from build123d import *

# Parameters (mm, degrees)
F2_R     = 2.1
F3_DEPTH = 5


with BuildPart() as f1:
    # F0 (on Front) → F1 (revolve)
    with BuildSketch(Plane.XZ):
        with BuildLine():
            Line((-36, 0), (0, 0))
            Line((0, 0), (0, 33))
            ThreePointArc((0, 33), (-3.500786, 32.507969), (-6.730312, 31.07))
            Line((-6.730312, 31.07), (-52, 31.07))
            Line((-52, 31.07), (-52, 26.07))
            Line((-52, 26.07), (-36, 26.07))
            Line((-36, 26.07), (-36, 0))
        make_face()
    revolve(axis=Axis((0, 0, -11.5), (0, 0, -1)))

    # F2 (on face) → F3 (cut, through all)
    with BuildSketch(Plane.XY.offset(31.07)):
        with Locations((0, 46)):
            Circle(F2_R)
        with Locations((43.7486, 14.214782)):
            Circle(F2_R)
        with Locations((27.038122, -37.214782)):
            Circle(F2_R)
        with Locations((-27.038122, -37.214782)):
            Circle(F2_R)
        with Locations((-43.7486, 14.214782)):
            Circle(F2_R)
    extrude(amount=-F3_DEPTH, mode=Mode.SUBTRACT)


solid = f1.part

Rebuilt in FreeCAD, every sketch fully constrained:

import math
import FreeCAD as App
import Part
import Sketcher
Q = App.Units.Quantity

doc = App.newDocument("Part")
body = doc.addObject("PartDesign::Body", "Body")

# Sketch on XZ plane
sketch1 = doc.addObject("Sketcher::SketchObject", "Sketch")
body.addObject(sketch1)
sketch1.AttachmentSupport = (doc.XZ_Plane, [""])
sketch1.MapMode = "FlatFace"
sketch1.addGeometry(Part.LineSegment(App.Vector(-36, 0, 0), App.Vector(0, 0, 0)), False)
sketch1.addGeometry(Part.LineSegment(App.Vector(0, 0, 0), App.Vector(0, 33, 0)), False)
sketch1.addGeometry(Part.ArcOfCircle(Part.Circle(App.Vector(0, 20, 0), App.Vector(0, 0, 1), 13), math.radians(90), math.radians(122)), False)
sketch1.addGeometry(Part.LineSegment(App.Vector(-7, 31, 0), App.Vector(-52, 31, 0)), False)
sketch1.addGeometry(Part.LineSegment(App.Vector(-52, 31, 0), App.Vector(-52, 26, 0)), False)
sketch1.addGeometry(Part.LineSegment(App.Vector(-52, 26, 0), App.Vector(-36, 26, 0)), False)
sketch1.addGeometry(Part.LineSegment(App.Vector(-36, 26, 0), App.Vector(-36, 0, 0)), False)
sketch1.addConstraint(Sketcher.Constraint("Coincident", 0, 2, 1, 1))
sketch1.addConstraint(Sketcher.Constraint("Coincident", 1, 2, 2, 1))
sketch1.addConstraint(Sketcher.Constraint("Coincident", 2, 2, 3, 1))
sketch1.addConstraint(Sketcher.Constraint("Coincident", 3, 2, 4, 1))
sketch1.addConstraint(Sketcher.Constraint("Coincident", 4, 2, 5, 1))
sketch1.addConstraint(Sketcher.Constraint("Coincident", 5, 2, 6, 1))
sketch1.addConstraint(Sketcher.Constraint("Coincident", 6, 2, 0, 1))
sketch1.addConstraint(Sketcher.Constraint("Horizontal", 0))
sketch1.addConstraint(Sketcher.Constraint("Vertical", 1))
sketch1.addConstraint(Sketcher.Constraint("Horizontal", 3))
sketch1.addConstraint(Sketcher.Constraint("Vertical", 4))
sketch1.addConstraint(Sketcher.Constraint("Horizontal", 5))
sketch1.addConstraint(Sketcher.Constraint("Vertical", 6))
sketch1.addConstraint(Sketcher.Constraint("Coincident", 0, 2, -1, 1))
sketch1.addConstraint(Sketcher.Constraint("DistanceX", 0, 1, 0, 2, Q("36 mm")))
sketch1.addConstraint(Sketcher.Constraint("DistanceX", 5, 1, 5, 2, Q("16 mm")))
sketch1.addConstraint(Sketcher.Constraint("DistanceY", 1, 1, 1, 2, Q("33 mm")))
sketch1.addConstraint(Sketcher.Constraint("DistanceY", 4, 2, 4, 1, Q("5 mm")))
sketch1.addConstraint(Sketcher.Constraint("DistanceY", 6, 2, 6, 1, Q("26.07 mm")))
sketch1.addConstraint(Sketcher.Constraint("Radius", 2, Q("12.69999 mm")))
sketch1.addConstraint(Sketcher.Constraint("DistanceX", 3, 2, 3, 1, Q("45.269688 mm")))
revolution = doc.addObject("PartDesign::Revolution", "Revolution")
body.addObject(revolution)
revolution.Profile = sketch1
revolution.ReferenceAxis = (sketch1, ["V_Axis"])
revolution.Angle = 360

# Sketch on XY plane
sketch2 = doc.addObject("Sketcher::SketchObject", "Sketch001")
body.addObject(sketch2)
sketch2.AttachmentSupport = (doc.XY_Plane, [""])
sketch2.MapMode = "FlatFace"
sketch2.AttachmentOffset = App.Placement(App.Vector(0, 0, 31.07), App.Rotation())
sketch2.addGeometry(Part.Circle(App.Vector(0, 46, 0), App.Vector(0, 0, 1), 2.1), False)
sketch2.addGeometry(Part.Circle(App.Vector(43.7, 14.2, 0), App.Vector(0, 0, 1), 2.1), False)
sketch2.addGeometry(Part.Circle(App.Vector(27, -37.2, 0), App.Vector(0, 0, 1), 2.1), False)
sketch2.addGeometry(Part.Circle(App.Vector(-27, -37.2, 0), App.Vector(0, 0, 1), 2.1), False)
sketch2.addGeometry(Part.Circle(App.Vector(-43.7, 14.2, 0), App.Vector(0, 0, 1), 2.1), False)
sketch2.addConstraint(Sketcher.Constraint("Equal", 0, 1))
sketch2.addConstraint(Sketcher.Constraint("Equal", 1, 2))
sketch2.addConstraint(Sketcher.Constraint("Equal", 2, 3))
sketch2.addConstraint(Sketcher.Constraint("Equal", 3, 4))
sketch2.addConstraint(Sketcher.Constraint("Symmetric", 2, 3, 3, 3, -2))
sketch2.addConstraint(Sketcher.Constraint("Symmetric", 1, 3, 4, 3, -2))
sketch2.addConstraint(Sketcher.Constraint("PointOnObject", 0, 3, -2))
sketch2.addConstraint(Sketcher.Constraint("Diameter", 0, Q("4.2 mm")))
sketch2.addConstraint(Sketcher.Constraint("DistanceY", -1, 1, 0, 3, Q("46 mm")))
sketch2.addConstraint(Sketcher.Constraint("DistanceX", -1, 1, 1, 3, Q("43.7486 mm")))
sketch2.addConstraint(Sketcher.Constraint("DistanceY", 1, 3, 0, 3, Q("31.785218 mm")))
sketch2.addConstraint(Sketcher.Constraint("DistanceX", 2, 3, 1, 3, Q("16.710478 mm")))
sketch2.addConstraint(Sketcher.Constraint("DistanceY", 2, 3, 0, 3, Q("83.214782 mm")))
pocket1 = doc.addObject("PartDesign::Pocket", "Pocket")
body.addObject(pocket1)
pocket1.Profile = sketch2
pocket1.Type = "ThroughAll"

doc.recompute()
